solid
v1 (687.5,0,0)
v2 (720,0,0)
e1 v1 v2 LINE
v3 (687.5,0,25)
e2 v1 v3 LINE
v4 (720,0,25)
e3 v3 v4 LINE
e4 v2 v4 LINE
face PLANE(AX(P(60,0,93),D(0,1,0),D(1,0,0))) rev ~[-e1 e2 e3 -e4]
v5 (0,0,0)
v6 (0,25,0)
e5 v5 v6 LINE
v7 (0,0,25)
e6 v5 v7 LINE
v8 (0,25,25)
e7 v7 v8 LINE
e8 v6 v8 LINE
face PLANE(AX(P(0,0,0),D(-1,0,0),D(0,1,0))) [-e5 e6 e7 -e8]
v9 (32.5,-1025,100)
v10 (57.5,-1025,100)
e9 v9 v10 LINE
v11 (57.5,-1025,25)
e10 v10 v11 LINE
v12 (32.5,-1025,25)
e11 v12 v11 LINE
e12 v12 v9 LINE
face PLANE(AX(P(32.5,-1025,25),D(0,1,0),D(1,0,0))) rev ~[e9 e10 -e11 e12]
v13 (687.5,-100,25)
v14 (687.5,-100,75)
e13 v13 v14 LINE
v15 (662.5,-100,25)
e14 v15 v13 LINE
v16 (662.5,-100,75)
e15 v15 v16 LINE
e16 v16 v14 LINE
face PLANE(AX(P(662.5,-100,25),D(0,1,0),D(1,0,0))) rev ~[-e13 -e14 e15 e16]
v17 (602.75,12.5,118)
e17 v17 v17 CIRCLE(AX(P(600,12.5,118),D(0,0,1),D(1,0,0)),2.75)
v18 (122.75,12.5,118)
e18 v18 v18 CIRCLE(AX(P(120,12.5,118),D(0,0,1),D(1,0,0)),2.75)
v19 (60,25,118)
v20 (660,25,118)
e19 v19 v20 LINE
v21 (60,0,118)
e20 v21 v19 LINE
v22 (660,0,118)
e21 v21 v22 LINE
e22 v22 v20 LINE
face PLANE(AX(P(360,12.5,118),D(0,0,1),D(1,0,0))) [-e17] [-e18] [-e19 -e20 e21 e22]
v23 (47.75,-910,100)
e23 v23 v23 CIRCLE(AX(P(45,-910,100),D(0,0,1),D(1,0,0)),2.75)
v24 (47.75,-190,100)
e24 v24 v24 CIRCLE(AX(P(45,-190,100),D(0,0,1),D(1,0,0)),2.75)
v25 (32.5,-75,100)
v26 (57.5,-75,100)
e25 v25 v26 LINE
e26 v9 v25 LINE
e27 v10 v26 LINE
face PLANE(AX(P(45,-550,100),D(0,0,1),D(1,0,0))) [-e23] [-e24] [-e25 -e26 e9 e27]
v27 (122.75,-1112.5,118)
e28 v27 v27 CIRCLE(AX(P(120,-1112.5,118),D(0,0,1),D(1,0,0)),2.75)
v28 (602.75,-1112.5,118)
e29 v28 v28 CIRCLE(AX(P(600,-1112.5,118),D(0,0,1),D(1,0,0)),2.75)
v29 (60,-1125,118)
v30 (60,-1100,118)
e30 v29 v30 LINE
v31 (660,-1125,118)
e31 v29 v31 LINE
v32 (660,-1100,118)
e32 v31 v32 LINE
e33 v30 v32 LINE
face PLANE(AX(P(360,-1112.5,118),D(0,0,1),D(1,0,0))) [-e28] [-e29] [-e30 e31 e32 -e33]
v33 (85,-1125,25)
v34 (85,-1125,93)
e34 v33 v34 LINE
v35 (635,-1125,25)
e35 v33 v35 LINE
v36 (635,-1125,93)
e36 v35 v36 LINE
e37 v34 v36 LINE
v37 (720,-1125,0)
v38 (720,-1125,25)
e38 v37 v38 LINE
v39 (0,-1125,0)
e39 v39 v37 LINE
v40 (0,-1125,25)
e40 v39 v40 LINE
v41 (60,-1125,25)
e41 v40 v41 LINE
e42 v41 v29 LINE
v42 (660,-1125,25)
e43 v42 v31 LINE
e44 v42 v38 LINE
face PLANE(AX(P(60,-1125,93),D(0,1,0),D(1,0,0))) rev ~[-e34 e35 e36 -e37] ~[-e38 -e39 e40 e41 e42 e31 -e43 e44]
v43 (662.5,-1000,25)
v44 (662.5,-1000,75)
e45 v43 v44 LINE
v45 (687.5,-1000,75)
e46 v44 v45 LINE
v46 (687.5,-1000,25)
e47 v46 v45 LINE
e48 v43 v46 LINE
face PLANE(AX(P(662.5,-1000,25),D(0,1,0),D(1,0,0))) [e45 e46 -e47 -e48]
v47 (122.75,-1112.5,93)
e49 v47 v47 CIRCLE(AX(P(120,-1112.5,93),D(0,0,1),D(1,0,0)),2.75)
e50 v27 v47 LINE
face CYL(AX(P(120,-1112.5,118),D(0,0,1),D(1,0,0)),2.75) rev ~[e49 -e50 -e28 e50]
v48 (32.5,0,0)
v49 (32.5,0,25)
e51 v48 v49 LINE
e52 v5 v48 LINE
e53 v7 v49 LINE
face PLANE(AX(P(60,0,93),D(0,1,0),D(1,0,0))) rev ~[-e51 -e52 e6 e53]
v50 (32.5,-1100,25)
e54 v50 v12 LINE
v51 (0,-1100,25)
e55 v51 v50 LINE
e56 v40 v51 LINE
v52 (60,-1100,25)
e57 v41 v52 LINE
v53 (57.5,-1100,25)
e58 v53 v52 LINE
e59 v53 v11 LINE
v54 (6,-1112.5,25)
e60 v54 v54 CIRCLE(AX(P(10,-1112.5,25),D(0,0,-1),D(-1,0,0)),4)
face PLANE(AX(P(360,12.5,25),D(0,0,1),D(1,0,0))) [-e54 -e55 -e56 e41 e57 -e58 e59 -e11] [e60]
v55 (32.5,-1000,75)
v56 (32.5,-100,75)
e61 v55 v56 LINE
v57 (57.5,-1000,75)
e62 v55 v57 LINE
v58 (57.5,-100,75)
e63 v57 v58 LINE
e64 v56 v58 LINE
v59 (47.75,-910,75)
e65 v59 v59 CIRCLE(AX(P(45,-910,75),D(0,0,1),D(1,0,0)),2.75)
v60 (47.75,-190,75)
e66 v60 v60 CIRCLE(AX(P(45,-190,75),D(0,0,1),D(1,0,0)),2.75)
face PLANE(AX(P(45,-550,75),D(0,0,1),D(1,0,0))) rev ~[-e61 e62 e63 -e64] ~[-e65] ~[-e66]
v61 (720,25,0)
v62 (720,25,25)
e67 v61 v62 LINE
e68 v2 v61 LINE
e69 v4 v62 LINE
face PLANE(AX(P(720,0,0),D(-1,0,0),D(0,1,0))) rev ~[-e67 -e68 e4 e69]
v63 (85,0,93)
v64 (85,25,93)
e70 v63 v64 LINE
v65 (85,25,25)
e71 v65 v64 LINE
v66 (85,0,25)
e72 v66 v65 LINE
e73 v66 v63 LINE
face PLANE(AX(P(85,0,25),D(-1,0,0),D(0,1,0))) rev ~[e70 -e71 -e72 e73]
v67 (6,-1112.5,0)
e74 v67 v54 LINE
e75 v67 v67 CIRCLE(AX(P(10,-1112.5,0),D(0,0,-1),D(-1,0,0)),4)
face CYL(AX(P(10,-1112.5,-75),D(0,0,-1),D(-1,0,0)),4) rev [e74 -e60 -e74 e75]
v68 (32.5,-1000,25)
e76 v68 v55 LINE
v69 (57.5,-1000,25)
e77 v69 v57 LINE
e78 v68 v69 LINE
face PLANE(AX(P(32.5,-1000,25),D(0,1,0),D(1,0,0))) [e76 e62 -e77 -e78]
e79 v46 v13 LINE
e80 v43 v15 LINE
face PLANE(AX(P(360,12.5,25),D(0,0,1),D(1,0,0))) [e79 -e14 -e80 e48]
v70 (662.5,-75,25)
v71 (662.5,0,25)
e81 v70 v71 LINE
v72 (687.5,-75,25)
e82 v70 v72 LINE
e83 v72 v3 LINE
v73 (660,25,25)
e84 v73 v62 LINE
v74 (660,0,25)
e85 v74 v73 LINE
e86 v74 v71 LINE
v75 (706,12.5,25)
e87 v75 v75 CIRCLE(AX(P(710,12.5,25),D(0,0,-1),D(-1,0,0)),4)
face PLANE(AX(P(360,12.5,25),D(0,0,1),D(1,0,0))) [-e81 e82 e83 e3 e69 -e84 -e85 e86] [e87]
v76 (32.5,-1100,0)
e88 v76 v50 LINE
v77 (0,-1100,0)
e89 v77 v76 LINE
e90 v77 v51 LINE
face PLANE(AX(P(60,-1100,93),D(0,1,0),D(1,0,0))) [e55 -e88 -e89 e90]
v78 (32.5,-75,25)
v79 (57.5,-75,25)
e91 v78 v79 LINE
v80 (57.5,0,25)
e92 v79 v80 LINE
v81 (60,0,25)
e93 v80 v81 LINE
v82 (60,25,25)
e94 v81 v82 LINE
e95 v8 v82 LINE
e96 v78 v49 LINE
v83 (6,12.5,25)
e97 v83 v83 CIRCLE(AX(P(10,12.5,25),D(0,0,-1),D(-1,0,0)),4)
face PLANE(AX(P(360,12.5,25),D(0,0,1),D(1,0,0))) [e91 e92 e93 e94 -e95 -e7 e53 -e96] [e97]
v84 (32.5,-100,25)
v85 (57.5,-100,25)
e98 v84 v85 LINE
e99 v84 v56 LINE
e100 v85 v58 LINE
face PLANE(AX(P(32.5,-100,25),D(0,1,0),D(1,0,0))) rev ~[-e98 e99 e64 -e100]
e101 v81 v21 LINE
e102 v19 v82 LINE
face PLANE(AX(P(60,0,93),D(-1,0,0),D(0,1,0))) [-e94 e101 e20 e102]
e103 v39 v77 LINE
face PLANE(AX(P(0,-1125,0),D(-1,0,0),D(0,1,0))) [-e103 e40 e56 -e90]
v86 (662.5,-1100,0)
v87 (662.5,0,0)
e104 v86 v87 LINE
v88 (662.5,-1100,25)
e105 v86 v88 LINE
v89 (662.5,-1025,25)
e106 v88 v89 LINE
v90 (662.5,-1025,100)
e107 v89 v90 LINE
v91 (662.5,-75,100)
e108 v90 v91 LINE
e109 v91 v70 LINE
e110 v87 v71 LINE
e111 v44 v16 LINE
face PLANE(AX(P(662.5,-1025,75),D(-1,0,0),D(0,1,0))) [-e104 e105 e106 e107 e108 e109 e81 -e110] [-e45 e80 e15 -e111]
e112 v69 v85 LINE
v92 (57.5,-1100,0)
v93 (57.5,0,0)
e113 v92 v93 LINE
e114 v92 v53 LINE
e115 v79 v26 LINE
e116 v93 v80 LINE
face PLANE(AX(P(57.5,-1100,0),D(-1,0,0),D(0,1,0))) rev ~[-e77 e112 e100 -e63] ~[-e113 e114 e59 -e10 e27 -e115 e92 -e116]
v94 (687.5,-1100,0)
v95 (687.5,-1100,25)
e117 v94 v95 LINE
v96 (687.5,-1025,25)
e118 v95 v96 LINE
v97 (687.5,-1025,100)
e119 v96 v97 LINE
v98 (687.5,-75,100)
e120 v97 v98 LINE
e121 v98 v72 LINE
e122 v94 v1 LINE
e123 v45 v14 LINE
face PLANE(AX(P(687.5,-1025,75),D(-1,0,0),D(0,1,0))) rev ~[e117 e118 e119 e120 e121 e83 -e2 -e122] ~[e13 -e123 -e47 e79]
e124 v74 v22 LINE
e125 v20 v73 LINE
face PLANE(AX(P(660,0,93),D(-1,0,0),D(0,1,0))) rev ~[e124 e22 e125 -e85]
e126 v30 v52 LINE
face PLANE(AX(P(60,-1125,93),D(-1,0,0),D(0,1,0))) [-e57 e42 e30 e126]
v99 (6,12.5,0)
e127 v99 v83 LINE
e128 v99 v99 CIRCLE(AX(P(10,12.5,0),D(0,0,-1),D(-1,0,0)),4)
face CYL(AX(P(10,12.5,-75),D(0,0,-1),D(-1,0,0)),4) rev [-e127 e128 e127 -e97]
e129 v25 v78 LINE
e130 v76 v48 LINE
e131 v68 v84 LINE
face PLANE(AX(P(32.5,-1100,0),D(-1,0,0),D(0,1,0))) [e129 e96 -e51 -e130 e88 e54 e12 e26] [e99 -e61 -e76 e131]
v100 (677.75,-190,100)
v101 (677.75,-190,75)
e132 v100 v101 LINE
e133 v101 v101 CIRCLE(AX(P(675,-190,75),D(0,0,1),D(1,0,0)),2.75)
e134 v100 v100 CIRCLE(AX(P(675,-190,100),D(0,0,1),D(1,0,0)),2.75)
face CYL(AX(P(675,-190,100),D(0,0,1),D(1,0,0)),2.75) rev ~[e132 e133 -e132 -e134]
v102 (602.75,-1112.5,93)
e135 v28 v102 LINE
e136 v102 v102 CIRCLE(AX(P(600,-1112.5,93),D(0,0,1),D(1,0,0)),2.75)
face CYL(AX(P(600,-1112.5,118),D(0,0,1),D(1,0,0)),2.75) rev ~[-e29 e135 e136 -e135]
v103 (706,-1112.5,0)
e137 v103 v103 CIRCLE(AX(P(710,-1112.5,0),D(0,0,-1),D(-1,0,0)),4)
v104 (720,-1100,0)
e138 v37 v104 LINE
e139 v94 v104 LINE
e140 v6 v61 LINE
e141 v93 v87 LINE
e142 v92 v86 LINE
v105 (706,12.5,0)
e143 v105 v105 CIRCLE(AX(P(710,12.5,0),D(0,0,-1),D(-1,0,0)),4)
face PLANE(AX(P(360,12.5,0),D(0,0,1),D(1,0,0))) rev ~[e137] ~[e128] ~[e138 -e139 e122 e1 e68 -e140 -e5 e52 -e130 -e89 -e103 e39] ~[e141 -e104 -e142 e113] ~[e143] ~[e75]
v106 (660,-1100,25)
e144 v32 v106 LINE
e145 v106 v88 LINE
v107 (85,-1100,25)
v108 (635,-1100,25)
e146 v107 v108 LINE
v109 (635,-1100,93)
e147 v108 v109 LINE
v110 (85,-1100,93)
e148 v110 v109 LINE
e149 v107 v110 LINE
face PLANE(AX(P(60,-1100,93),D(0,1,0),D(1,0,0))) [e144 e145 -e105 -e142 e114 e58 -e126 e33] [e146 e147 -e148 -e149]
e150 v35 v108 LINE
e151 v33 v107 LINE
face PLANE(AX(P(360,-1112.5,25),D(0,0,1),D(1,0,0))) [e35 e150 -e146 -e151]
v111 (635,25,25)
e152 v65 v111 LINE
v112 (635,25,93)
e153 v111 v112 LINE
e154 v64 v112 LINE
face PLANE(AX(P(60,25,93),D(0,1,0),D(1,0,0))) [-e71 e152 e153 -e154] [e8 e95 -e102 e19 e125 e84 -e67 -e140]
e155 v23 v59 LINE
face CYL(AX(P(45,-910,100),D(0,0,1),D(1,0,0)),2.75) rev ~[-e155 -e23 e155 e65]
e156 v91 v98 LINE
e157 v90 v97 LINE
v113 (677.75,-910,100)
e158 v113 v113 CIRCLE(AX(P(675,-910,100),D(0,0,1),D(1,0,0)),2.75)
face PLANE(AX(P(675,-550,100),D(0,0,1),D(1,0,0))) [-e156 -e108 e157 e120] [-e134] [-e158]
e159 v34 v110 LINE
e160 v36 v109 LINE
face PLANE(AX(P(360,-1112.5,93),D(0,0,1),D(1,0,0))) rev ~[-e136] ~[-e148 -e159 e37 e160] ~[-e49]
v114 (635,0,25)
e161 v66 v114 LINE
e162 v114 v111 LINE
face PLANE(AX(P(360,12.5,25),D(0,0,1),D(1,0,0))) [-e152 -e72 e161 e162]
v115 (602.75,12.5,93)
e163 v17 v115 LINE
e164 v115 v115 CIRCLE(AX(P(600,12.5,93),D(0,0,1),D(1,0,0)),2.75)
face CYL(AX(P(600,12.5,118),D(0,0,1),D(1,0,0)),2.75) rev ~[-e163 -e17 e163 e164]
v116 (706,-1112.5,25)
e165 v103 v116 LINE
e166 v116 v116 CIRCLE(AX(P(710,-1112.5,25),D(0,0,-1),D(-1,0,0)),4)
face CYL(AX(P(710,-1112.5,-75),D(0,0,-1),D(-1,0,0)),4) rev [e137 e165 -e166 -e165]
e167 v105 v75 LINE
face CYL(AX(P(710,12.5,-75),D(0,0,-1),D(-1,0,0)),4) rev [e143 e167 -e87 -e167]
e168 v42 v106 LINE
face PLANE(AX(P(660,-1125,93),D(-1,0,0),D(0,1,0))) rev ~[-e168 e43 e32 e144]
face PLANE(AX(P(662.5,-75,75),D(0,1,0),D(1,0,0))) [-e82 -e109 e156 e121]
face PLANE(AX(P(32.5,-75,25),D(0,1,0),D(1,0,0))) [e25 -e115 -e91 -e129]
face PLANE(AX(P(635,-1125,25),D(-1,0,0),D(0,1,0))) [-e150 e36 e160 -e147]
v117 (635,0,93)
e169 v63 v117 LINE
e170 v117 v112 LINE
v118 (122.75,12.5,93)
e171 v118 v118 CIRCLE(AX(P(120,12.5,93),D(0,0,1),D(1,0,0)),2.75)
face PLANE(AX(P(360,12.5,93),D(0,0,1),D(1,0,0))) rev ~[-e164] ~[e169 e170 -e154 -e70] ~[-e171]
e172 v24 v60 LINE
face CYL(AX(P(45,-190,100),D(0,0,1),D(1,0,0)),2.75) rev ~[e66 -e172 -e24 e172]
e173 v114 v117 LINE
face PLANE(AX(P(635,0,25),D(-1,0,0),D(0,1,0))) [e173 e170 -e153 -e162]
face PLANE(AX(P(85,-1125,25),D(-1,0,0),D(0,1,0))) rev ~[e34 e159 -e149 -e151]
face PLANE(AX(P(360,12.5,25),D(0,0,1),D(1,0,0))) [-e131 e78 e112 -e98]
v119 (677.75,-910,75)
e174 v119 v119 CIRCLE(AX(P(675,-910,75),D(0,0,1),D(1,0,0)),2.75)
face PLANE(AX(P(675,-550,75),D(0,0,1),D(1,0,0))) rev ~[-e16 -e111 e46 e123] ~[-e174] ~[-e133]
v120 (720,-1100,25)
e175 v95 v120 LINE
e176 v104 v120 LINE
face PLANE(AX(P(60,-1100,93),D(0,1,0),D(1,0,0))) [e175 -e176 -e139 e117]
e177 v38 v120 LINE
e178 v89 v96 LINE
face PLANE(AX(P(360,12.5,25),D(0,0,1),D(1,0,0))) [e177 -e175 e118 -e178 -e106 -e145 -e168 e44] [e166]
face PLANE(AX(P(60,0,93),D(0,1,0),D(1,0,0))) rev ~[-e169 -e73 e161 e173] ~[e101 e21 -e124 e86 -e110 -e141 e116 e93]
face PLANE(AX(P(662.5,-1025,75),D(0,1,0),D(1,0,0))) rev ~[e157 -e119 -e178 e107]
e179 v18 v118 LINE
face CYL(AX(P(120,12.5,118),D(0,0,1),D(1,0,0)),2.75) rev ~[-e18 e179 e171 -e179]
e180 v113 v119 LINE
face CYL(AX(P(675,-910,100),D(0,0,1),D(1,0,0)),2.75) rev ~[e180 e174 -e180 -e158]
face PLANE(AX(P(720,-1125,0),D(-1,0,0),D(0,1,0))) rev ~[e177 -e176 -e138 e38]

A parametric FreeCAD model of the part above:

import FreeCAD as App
import Part
import Sketcher
Q = App.Units.Quantity

doc = App.newDocument("Part")
params = doc.addObject("Spreadsheet::Sheet", "Params")
for row, (alias, value) in enumerate([
    ("sketch1_width", "720 mm"),
    ("sketch1_height", "25 mm"),
    ("pad1_length", "25 mm"),
    ("sketch2_width", "720 mm"),
    ("sketch2_height", "25 mm"),
    ("pad2_length", "25 mm"),
    ("sketch3_diameter", "8 mm"),
    ("pad3_length", "25 mm"),
    ("pad3_length2", "100 mm"),
    ("sketch4_width", "25 mm"),
    ("pad4_length", "68 mm"),
    ("sketch5_width", "600 mm"),
    ("sketch5_height", "25 mm"),
    ("pad5_length", "25 mm"),
    ("sketch6_diameter", "5.5 mm"),
    ("pocket1_length", "25 mm"),
    ("sketch7_width", "25 mm"),
    ("sketch7_height", "1100 mm"),
    ("pad6_length", "25 mm"),
    ("sketch8_width", "25 mm"),
    ("pad7_length", "50 mm"),
    ("sketch9_width", "25 mm"),
    ("sketch9_height", "950 mm"),
    ("pad8_length", "25 mm"),
    ("sketch10_diameter", "5.5 mm"),
    ("pocket2_length", "25 mm"),
], start=1):
    params.set(f"A{row}", alias)
    params.set(f"B{row}", "=" + value)
    params.setAlias(f"B{row}", alias)

body = doc.addObject("PartDesign::Body", "Body")

# Sketch on XY plane
sketch1 = body.newObject("Sketcher::SketchObject", "Sketch")
sketch1.AttachmentSupport = (doc.getObject("XY_Plane"), [""])
sketch1.MapMode = "FlatFace"
sketch1.addGeometry([
    Part.LineSegment(App.Vector(0, 25, 0), App.Vector(0, 0, 0)),
    Part.LineSegment(App.Vector(0, 0, 0), App.Vector(720, 0, 0)),
    Part.LineSegment(App.Vector(720, 0, 0), App.Vector(720, 25, 0)),
    Part.LineSegment(App.Vector(720, 25, 0), App.Vector(0, 25, 0)),
], False)
sketch1.addConstraint([
    Sketcher.Constraint("Coincident", 0, 2, 1, 1),
    Sketcher.Constraint("Coincident", 1, 2, 2, 1),
    Sketcher.Constraint("Coincident", 2, 2, 3, 1),
    Sketcher.Constraint("Coincident", 3, 2, 0, 1),
    Sketcher.Constraint("Vertical", 0),
    Sketcher.Constraint("Horizontal", 1),
    Sketcher.Constraint("Vertical", 2),
    Sketcher.Constraint("Horizontal", 3),
    Sketcher.Constraint("Coincident", 0, 2, -1, 1),
    Sketcher.Constraint("DistanceX", 1, 1, 1, 2, Q("720 mm")),
    Sketcher.Constraint("DistanceY", 0, 2, 0, 1, Q("25 mm")),
])
sketch1.setExpression("Constraints[9]", "Params.sketch1_width")
sketch1.setExpression("Constraints[10]", "Params.sketch1_height")
pad1 = body.newObject("PartDesign::Pad", "Pad")
pad1.Profile = sketch1
pad1.setExpression("Length", "Params.pad1_length")
body2 = doc.addObject("PartDesign::Body", "Body001")

# Sketch on XY plane
sketch2 = body2.newObject("Sketcher::SketchObject", "Sketch001")
sketch2.AttachmentSupport = (doc.getObject("XY_Plane001"), [""])
sketch2.MapMode = "FlatFace"
sketch2.addGeometry([
    Part.LineSegment(App.Vector(0, -1100, 0), App.Vector(0, -1125, 0)),
    Part.LineSegment(App.Vector(0, -1125, 0), App.Vector(720, -1125, 0)),
    Part.LineSegment(App.Vector(720, -1125, 0), App.Vector(720, -1100, 0)),
    Part.LineSegment(App.Vector(720, -1100, 0), App.Vector(0, -1100, 0)),
], False)
sketch2.addConstraint([
    Sketcher.Constraint("Coincident", 0, 2, 1, 1),
    Sketcher.Constraint("Coincident", 1, 2, 2, 1),
    Sketcher.Constraint("Coincident", 2, 2, 3, 1),
    Sketcher.Constraint("Coincident", 3, 2, 0, 1),
    Sketcher.Constraint("Vertical", 0),
    Sketcher.Constraint("Horizontal", 1),
    Sketcher.Constraint("Vertical", 2),
    Sketcher.Constraint("Horizontal", 3),
    Sketcher.Constraint("PointOnObject", 0, 2, -2),
    Sketcher.Constraint("DistanceX", 1, 1, 1, 2, Q("720 mm")),
    Sketcher.Constraint("DistanceY", 0, 2, 0, 1, Q("25 mm")),
    Sketcher.Constraint("DistanceY", 0, 2, -1, 1, Q("1125 mm")),
])
sketch2.setExpression("Constraints[9]", "Params.sketch2_width")
sketch2.setExpression("Constraints[10]", "Params.sketch2_height")
pad2 = body2.newObject("PartDesign::Pad", "Pad001")
pad2.Profile = sketch2
pad2.setExpression("Length", "Params.pad2_length")
body3 = doc.addObject("PartDesign::Body", "Body002")
body3.AllowCompound = True

# Sketch on XY plane
sketch3 = body3.newObject("Sketcher::SketchObject", "Sketch002")
sketch3.AttachmentSupport = (doc.getObject("XY_Plane002"), [""])
sketch3.MapMode = "FlatFace"
sketch3.AttachmentOffset = App.Placement(App.Vector(0, 0, 25), App.Rotation())
sketch3.addGeometry([
    Part.Circle(App.Vector(10, 12.5, 0), App.Vector(0, 0, 1), 4),
    Part.Circle(App.Vector(710, 12.5, 0), App.Vector(0, 0, 1), 4),
    Part.Circle(App.Vector(710, -1112.5, 0), App.Vector(0, 0, 1), 4),
    Part.Circle(App.Vector(10, -1112.5, 0), App.Vector(0, 0, 1), 4),
], False)
sketch3.addConstraint([
    Sketcher.Constraint("Equal", 0, 1),
    Sketcher.Constraint("Equal", 1, 2),
    Sketcher.Constraint("Equal", 2, 3),
    Sketcher.Constraint("Horizontal", 0, 3, 1, 3),
    Sketcher.Constraint("Horizontal", 2, 3, 3, 3),
    Sketcher.Constraint("Vertical", 1, 3, 2, 3),
    Sketcher.Constraint("Vertical", 0, 3, 3, 3),
    Sketcher.Constraint("Diameter", 0, Q("8 mm")),
    Sketcher.Constraint("DistanceX", -1, 1, 0, 3, Q("10 mm")),
    Sketcher.Constraint("DistanceX", -1, 1, 1, 3, Q("710 mm")),
    Sketcher.Constraint("DistanceY", 2, 3, 1, 3, Q("1125 mm")),
    Sketcher.Constraint("DistanceY", -1, 1, 0, 3, Q("12.5 mm")),
])
sketch3.setExpression("Constraints[7]", "Params.sketch3_diameter")
pad3 = body3.newObject("PartDesign::Pad", "Pad002")
pad3.Profile = sketch3
pad3.Type = "TwoLengths"
pad3.setExpression("Length", "Params.pad3_length")
pad3.setExpression("Length2", "Params.pad3_length2")
doc.recompute()

body4 = doc.addObject("PartDesign::Body", "Body003")
body4.BaseFeature = body3
boolean = body.newObject("PartDesign::Boolean", "Boolean")
boolean.Type = "Cut"
boolean.addObjects([body4])
doc.recompute()

boolean2 = body2.newObject("PartDesign::Boolean", "Boolean001")
boolean2.Type = "Cut"
boolean2.addObjects([body3])
body.AllowCompound = True
doc.recompute()

boolean3 = body.newObject("PartDesign::Boolean", "Boolean002")
boolean3.Type = "Fuse"
boolean3.addObjects([body2])

# Sketch on XY plane
sketch4 = body.newObject("Sketcher::SketchObject", "Sketch003")
sketch4.AttachmentSupport = (doc.getObject("XY_Plane"), [""])
sketch4.MapMode = "FlatFace"
sketch4.AttachmentOffset = App.Placement(App.Vector(0, 0, 25), App.Rotation())
sketch4.addGeometry([
    Part.LineSegment(App.Vector(60, 25, 0), App.Vector(60, 0, 0)),  # 0
    Part.LineSegment(App.Vector(60, 0, 0), App.Vector(85, 0, 0)),  # 1
    Part.LineSegment(App.Vector(85, 0, 0), App.Vector(85, 25, 0)),  # 2
    Part.LineSegment(App.Vector(85, 25, 0), App.Vector(60, 25, 0)),  # 3
    Part.LineSegment(App.Vector(635, 25, 0), App.Vector(635, 0, 0)),  # 4
    Part.LineSegment(App.Vector(635, 0, 0), App.Vector(660, 0, 0)),  # 5
    Part.LineSegment(App.Vector(660, 0, 0), App.Vector(660, 25, 0)),  # 6
    Part.LineSegment(App.Vector(660, 25, 0), App.Vector(635, 25, 0)),  # 7
    Part.LineSegment(App.Vector(60, -1100, 0), App.Vector(60, -1125, 0)),  # 8
    Part.LineSegment(App.Vector(60, -1125, 0), App.Vector(85, -1125, 0)),  # 9
    Part.LineSegment(App.Vector(85, -1125, 0), App.Vector(85, -1100, 0)),  # 10
    Part.LineSegment(App.Vector(85, -1100, 0), App.Vector(60, -1100, 0)),  # 11
    Part.LineSegment(App.Vector(635, -1100, 0), App.Vector(635, -1125, 0)),  # 12
    Part.LineSegment(App.Vector(635, -1125, 0), App.Vector(660, -1125, 0)),  # 13
    Part.LineSegment(App.Vector(660, -1125, 0), App.Vector(660, -1100, 0)),  # 14
    Part.LineSegment(App.Vector(660, -1100, 0), App.Vector(635, -1100, 0)),  # 15
], False)
sketch4.addConstraint([
    Sketcher.Constraint("Coincident", 0, 2, 1, 1),
    Sketcher.Constraint("Coincident", 1, 2, 2, 1),
    Sketcher.Constraint("Coincident", 2, 2, 3, 1),
    Sketcher.Constraint("Coincident", 3, 2, 0, 1),
    Sketcher.Constraint("Coincident", 4, 2, 5, 1),
    Sketcher.Constraint("Coincident", 5, 2, 6, 1),
    Sketcher.Constraint("Coincident", 6, 2, 7, 1),
    Sketcher.Constraint("Coincident", 7, 2, 4, 1),
    Sketcher.Constraint("Coincident", 8, 2, 9, 1),
    Sketcher.Constraint("Coincident", 9, 2, 10, 1),
    Sketcher.Constraint("Coincident", 10, 2, 11, 1),
    Sketcher.Constraint("Coincident", 11, 2, 8, 1),
    Sketcher.Constraint("Coincident", 12, 2, 13, 1),
    Sketcher.Constraint("Coincident", 13, 2, 14, 1),
    Sketcher.Constraint("Coincident", 14, 2, 15, 1),
    Sketcher.Constraint("Coincident", 15, 2, 12, 1),
    Sketcher.Constraint("Vertical", 0),
    Sketcher.Constraint("Horizontal", 1),
    Sketcher.Constraint("Vertical", 2),
    Sketcher.Constraint("Horizontal", 3),
    Sketcher.Constraint("Vertical", 4),
    Sketcher.Constraint("Horizontal", 5),
    Sketcher.Constraint("Vertical", 6),
    Sketcher.Constraint("Horizontal", 7),
    Sketcher.Constraint("Vertical", 8),
    Sketcher.Constraint("Horizontal", 9),
    Sketcher.Constraint("Vertical", 10),
    Sketcher.Constraint("Horizontal", 11),
    Sketcher.Constraint("Vertical", 12),
    Sketcher.Constraint("Horizontal", 13),
    Sketcher.Constraint("Vertical", 14),
    Sketcher.Constraint("Horizontal", 15),
    Sketcher.Constraint("PointOnObject", 0, 2, -1),
    Sketcher.Constraint("PointOnObject", 4, 2, -1),
    Sketcher.Constraint("Horizontal", 3, 2, 6, 2),
    Sketcher.Constraint("Horizontal", 9, 2, 12, 2),
    Sketcher.Constraint("Horizontal", 11, 2, 14, 2),
    Sketcher.Constraint("Vertical", 3, 2, 8, 2),
    Sketcher.Constraint("Vertical", 2, 2, 9, 2),
    Sketcher.Constraint("Vertical", 7, 2, 12, 2),
    Sketcher.Constraint("Vertical", 6, 2, 13, 2),
    Sketcher.Constraint("Equal", 3, 5),
    Sketcher.Constraint("Equal", 15, 0),
    Sketcher.Constraint("Equal", 6, 8),
    Sketcher.Constraint("DistanceX", 1, 1, 1, 2, Q("25 mm")),
    Sketcher.Constraint("DistanceX", -1, 1, 0, 2, Q("60 mm")),
    Sketcher.Constraint("DistanceX", -1, 1, 4, 2, Q("635 mm")),
    Sketcher.Constraint("DistanceY", 8, 2, -1, 1, Q("1125 mm")),
])
sketch4.setExpression("Constraints[44]", "Params.sketch4_width")
pad4 = body.newObject("PartDesign::Pad", "Pad003")
pad4.Profile = sketch4
pad4.setExpression("Length", "Params.pad4_length")

# Sketch on XY plane
sketch5 = body.newObject("Sketcher::SketchObject", "Sketch004")
sketch5.AttachmentSupport = (doc.getObject("XY_Plane"), [""])
sketch5.MapMode = "FlatFace"
sketch5.AttachmentOffset = App.Placement(App.Vector(0, 0, 93), App.Rotation())
sketch5.addGeometry([
    Part.LineSegment(App.Vector(60, 25, 0), App.Vector(60, 0, 0)),  # 0
    Part.LineSegment(App.Vector(60, 0, 0), App.Vector(660, 0, 0)),  # 1
    Part.LineSegment(App.Vector(660, 0, 0), App.Vector(660, 25, 0)),  # 2
    Part.LineSegment(App.Vector(660, 25, 0), App.Vector(60, 25, 0)),  # 3
    Part.LineSegment(App.Vector(60, -1100, 0), App.Vector(60, -1125, 0)),  # 4
    Part.LineSegment(App.Vector(60, -1125, 0), App.Vector(660, -1125, 0)),  # 5
    Part.LineSegment(App.Vector(660, -1125, 0), App.Vector(660, -1100, 0)),  # 6
    Part.LineSegment(App.Vector(660, -1100, 0), App.Vector(60, -1100, 0)),  # 7
], False)
sketch5.addConstraint([
    Sketcher.Constraint("Coincident", 0, 2, 1, 1),
    Sketcher.Constraint("Coincident", 1, 2, 2, 1),
    Sketcher.Constraint("Coincident", 2, 2, 3, 1),
    Sketcher.Constraint("Coincident", 3, 2, 0, 1),
    Sketcher.Constraint("Coincident", 4, 2, 5, 1),
    Sketcher.Constraint("Coincident", 5, 2, 6, 1),
    Sketcher.Constraint("Coincident", 6, 2, 7, 1),
    Sketcher.Constraint("Coincident", 7, 2, 4, 1),
    Sketcher.Constraint("Vertical", 0),
    Sketcher.Constraint("Horizontal", 1),
    Sketcher.Constraint("Vertical", 2),
    Sketcher.Constraint("Horizontal", 3),
    Sketcher.Constraint("Vertical", 4),
    Sketcher.Constraint("Horizontal", 5),
    Sketcher.Constraint("Vertical", 6),
    Sketcher.Constraint("Horizontal", 7),
    Sketcher.Constraint("PointOnObject", 0, 2, -1),
    Sketcher.Constraint("Vertical", 3, 2, 4, 2),
    Sketcher.Constraint("Vertical", 2, 2, 5, 2),
    Sketcher.Constraint("Equal", 2, 4),
    Sketcher.Constraint("DistanceX", 1, 1, 1, 2, Q("600 mm")),
    Sketcher.Constraint("DistanceY", 0, 2, 0, 1, Q("25 mm")),
    Sketcher.Constraint("DistanceX", -1, 1, 0, 2, Q("60 mm")),
    Sketcher.Constraint("DistanceY", 4, 2, -1, 1, Q("1125 mm")),
])
sketch5.setExpression("Constraints[20]", "Params.sketch5_width")
sketch5.setExpression("Constraints[21]", "Params.sketch5_height")
pad5 = body.newObject("PartDesign::Pad", "Pad004")
pad5.Profile = sketch5
pad5.setExpression("Length", "Params.pad5_length")

# Sketch on XY plane
sketch6 = body.newObject("Sketcher::SketchObject", "Sketch005")
sketch6.AttachmentSupport = (doc.getObject("XY_Plane"), [""])
sketch6.MapMode = "FlatFace"
sketch6.AttachmentOffset = App.Placement(App.Vector(0, 0, 118), App.Rotation())
sketch6.addGeometry([
    Part.Circle(App.Vector(120, 12.5, 0), App.Vector(0, 0, 1), 2.8),
    Part.Circle(App.Vector(600, 12.5, 0), App.Vector(0, 0, 1), 2.8),
    Part.Circle(App.Vector(600, -1112.5, 0), App.Vector(0, 0, 1), 2.8),
    Part.Circle(App.Vector(120, -1112.5, 0), App.Vector(0, 0, 1), 2.8),
], False)
sketch6.addConstraint([
    Sketcher.Constraint("Equal", 0, 1),
    Sketcher.Constraint("Equal", 1, 2),
    Sketcher.Constraint("Equal", 2, 3),
    Sketcher.Constraint("Horizontal", 0, 3, 1, 3),
    Sketcher.Constraint("Horizontal", 2, 3, 3, 3),
    Sketcher.Constraint("Vertical", 1, 3, 2, 3),
    Sketcher.Constraint("Vertical", 0, 3, 3, 3),
    Sketcher.Constraint("Diameter", 0, Q("5.5 mm")),
    Sketcher.Constraint("DistanceX", -1, 1, 0, 3, Q("120 mm")),
    Sketcher.Constraint("DistanceX", -1, 1, 1, 3, Q("600 mm")),
    Sketcher.Constraint("DistanceY", 2, 3, 1, 3, Q("1125 mm")),
    Sketcher.Constraint("DistanceY", -1, 1, 0, 3, Q("12.5 mm")),
])
sketch6.setExpression("Constraints[7]", "Params.sketch6_diameter")
pocket1 = body.newObject("PartDesign::Pocket", "Pocket")
pocket1.Profile = sketch6
pocket1.setExpression("Length", "Params.pocket1_length")

# Sketch on XY plane
sketch7 = body.newObject("Sketcher::SketchObject", "Sketch006")
sketch7.AttachmentSupport = (doc.getObject("XY_Plane"), [""])
sketch7.MapMode = "FlatFace"
sketch7.addGeometry([
    Part.LineSegment(App.Vector(688, 0, 0), App.Vector(688, -1100, 0)),  # 0
    Part.LineSegment(App.Vector(688, -1100, 0), App.Vector(662, -1100, 0)),  # 1
    Part.LineSegment(App.Vector(662, -1100, 0), App.Vector(662, 0, 0)),  # 2
    Part.LineSegment(App.Vector(662, 0, 0), App.Vector(688, 0, 0)),  # 3
    Part.LineSegment(App.Vector(58, 0, 0), App.Vector(58, -1100, 0)),  # 4
    Part.LineSegment(App.Vector(58, -1100, 0), App.Vector(32, -1100, 0)),  # 5
    Part.LineSegment(App.Vector(32, -1100, 0), App.Vector(32, 0, 0)),  # 6
    Part.LineSegment(App.Vector(32, 0, 0), App.Vector(58, 0, 0)),  # 7
], False)
sketch7.addConstraint([
    Sketcher.Constraint("Coincident", 0, 2, 1, 1),
    Sketcher.Constraint("Coincident", 1, 2, 2, 1),
    Sketcher.Constraint("Coincident", 2, 2, 3, 1),
    Sketcher.Constraint("Coincident", 3, 2, 0, 1),
    Sketcher.Constraint("Coincident", 4, 2, 5, 1),
    Sketcher.Constraint("Coincident", 5, 2, 6, 1),
    Sketcher.Constraint("Coincident", 6, 2, 7, 1),
    Sketcher.Constraint("Coincident", 7, 2, 4, 1),
    Sketcher.Constraint("Vertical", 0),
    Sketcher.Constraint("Horizontal", 1),
    Sketcher.Constraint("Vertical", 2),
    Sketcher.Constraint("Horizontal", 3),
    Sketcher.Constraint("Vertical", 4),
    Sketcher.Constraint("Horizontal", 5),
    Sketcher.Constraint("Vertical", 6),
    Sketcher.Constraint("Horizontal", 7),
    Sketcher.Constraint("PointOnObject", 2, 2, -1),
    Sketcher.Constraint("PointOnObject", 6, 2, -1),
    Sketcher.Constraint("Horizontal", 1, 2, 4, 2),
    Sketcher.Constraint("Equal", 3, 5),
    Sketcher.Constraint("DistanceX", 1, 2, 1, 1, Q("25 mm")),
    Sketcher.Constraint("DistanceY", 0, 2, 0, 1, Q("1100 mm")),
    Sketcher.Constraint("DistanceX", 4, 2, 1, 2, Q("605 mm")),
    Sketcher.Constraint("DistanceX", -1, 1, 0, 2, Q("687.5 mm")),
])
sketch7.setExpression("Constraints[20]", "Params.sketch7_width")
sketch7.setExpression("Constraints[21]", "Params.sketch7_height")
pad6 = body.newObject("PartDesign::Pad", "Pad005")
pad6.Profile = sketch7
pad6.setExpression("Length", "Params.pad6_length")

# Sketch on XY plane
sketch8 = body.newObject("Sketcher::SketchObject", "Sketch007")
sketch8.AttachmentSupport = (doc.getObject("XY_Plane"), [""])
sketch8.MapMode = "FlatFace"
sketch8.AttachmentOffset = App.Placement(App.Vector(0, 0, 25), App.Rotation())
sketch8.addGeometry([
    Part.LineSegment(App.Vector(32, -1000, 0), App.Vector(32, -1025, 0)),  # 0
    Part.LineSegment(App.Vector(32, -1025, 0), App.Vector(58, -1025, 0)),  # 1
    Part.LineSegment(App.Vector(58, -1025, 0), App.Vector(58, -1000, 0)),  # 2
    Part.LineSegment(App.Vector(58, -1000, 0), App.Vector(32, -1000, 0)),  # 3
    Part.LineSegment(App.Vector(32, -75, 0), App.Vector(32, -100, 0)),  # 4
    Part.LineSegment(App.Vector(32, -100, 0), App.Vector(58, -100, 0)),  # 5
    Part.LineSegment(App.Vector(58, -100, 0), App.Vector(58, -75, 0)),  # 6
    Part.LineSegment(App.Vector(58, -75, 0), App.Vector(32, -75, 0)),  # 7
    Part.LineSegment(App.Vector(662, -75, 0), App.Vector(662, -100, 0)),  # 8
    Part.LineSegment(App.Vector(662, -100, 0), App.Vector(688, -100, 0)),  # 9
    Part.LineSegment(App.Vector(688, -100, 0), App.Vector(688, -75, 0)),  # 10
    Part.LineSegment(App.Vector(688, -75, 0), App.Vector(662, -75, 0)),  # 11
    Part.LineSegment(App.Vector(662, -1000, 0), App.Vector(662, -1025, 0)),  # 12
    Part.LineSegment(App.Vector(662, -1025, 0), App.Vector(688, -1025, 0)),  # 13
    Part.LineSegment(App.Vector(688, -1025, 0), App.Vector(688, -1000, 0)),  # 14
    Part.LineSegment(App.Vector(688, -1000, 0), App.Vector(662, -1000, 0)),  # 15
], False)
sketch8.addConstraint([
    Sketcher.Constraint("Coincident", 0, 2, 1, 1),
    Sketcher.Constraint("Coincident", 1, 2, 2, 1),
    Sketcher.Constraint("Coincident", 2, 2, 3, 1),
    Sketcher.Constraint("Coincident", 3, 2, 0, 1),
    Sketcher.Constraint("Coincident", 4, 2, 5, 1),
    Sketcher.Constraint("Coincident", 5, 2, 6, 1),
    Sketcher.Constraint("Coincident", 6, 2, 7, 1),
    Sketcher.Constraint("Coincident", 7, 2, 4, 1),
    Sketcher.Constraint("Coincident", 8, 2, 9, 1),
    Sketcher.Constraint("Coincident", 9, 2, 10, 1),
    Sketcher.Constraint("Coincident", 10, 2, 11, 1),
    Sketcher.Constraint("Coincident", 11, 2, 8, 1),
    Sketcher.Constraint("Coincident", 12, 2, 13, 1),
    Sketcher.Constraint("Coincident", 13, 2, 14, 1),
    Sketcher.Constraint("Coincident", 14, 2, 15, 1),
    Sketcher.Constraint("Coincident", 15, 2, 12, 1),
    Sketcher.Constraint("Vertical", 0),
    Sketcher.Constraint("Horizontal", 1),
    Sketcher.Constraint("Vertical", 2),
    Sketcher.Constraint("Horizontal", 3),
    Sketcher.Constraint("Vertical", 4),
    Sketcher.Constraint("Horizontal", 5),
    Sketcher.Constraint("Vertical", 6),
    Sketcher.Constraint("Horizontal", 7),
    Sketcher.Constraint("Vertical", 8),
    Sketcher.Constraint("Horizontal", 9),
    Sketcher.Constraint("Vertical", 10),
    Sketcher.Constraint("Horizontal", 11),
    Sketcher.Constraint("Vertical", 12),
    Sketcher.Constraint("Horizontal", 13),
    Sketcher.Constraint("Vertical", 14),
    Sketcher.Constraint("Horizontal", 15),
    Sketcher.Constraint("Horizontal", 5, 2, 8, 2),
    Sketcher.Constraint("Horizontal", 7, 2, 10, 2),
    Sketcher.Constraint("Horizontal", 1, 2, 12, 2),
    Sketcher.Constraint("Horizontal", 3, 2, 14, 2),
    Sketcher.Constraint("Vertical", 3, 2, 4, 2),
    Sketcher.Constraint("Vertical", 2, 2, 5, 2),
    Sketcher.Constraint("Vertical", 11, 2, 12, 2),
    Sketcher.Constraint("Vertical", 10, 2, 13, 2),
    Sketcher.Constraint("Equal", 7, 9),
    Sketcher.Constraint("Equal", 15, 0),
    Sketcher.Constraint("Equal", 2, 4),
    Sketcher.Constraint("DistanceX", 1, 1, 1, 2, Q("25 mm")),
    Sketcher.Constraint("DistanceY", 0, 2, -1, 1, Q("1025 mm")),
    Sketcher.Constraint("DistanceY", 4, 2, -1, 1, Q("100 mm")),
    Sketcher.Constraint("DistanceX", 5, 2, 8, 2, Q("605 mm")),
    Sketcher.Constraint("DistanceX", -1, 1, 0, 2, Q("32.5 mm")),
])
sketch8.setExpression("Constraints[43]", "Params.sketch8_width")
pad7 = body.newObject("PartDesign::Pad", "Pad006")
pad7.Profile = sketch8
pad7.setExpression("Length", "Params.pad7_length")

# Sketch on XY plane
sketch9 = body.newObject("Sketcher::SketchObject", "Sketch008")
sketch9.AttachmentSupport = (doc.getObject("XY_Plane"), [""])
sketch9.MapMode = "FlatFace"
sketch9.AttachmentOffset = App.Placement(App.Vector(0, 0, 75), App.Rotation())
sketch9.addGeometry([
    Part.LineSegment(App.Vector(662, -75, 0), App.Vector(662, -1025, 0)),  # 0
    Part.LineSegment(App.Vector(662, -1025, 0), App.Vector(688, -1025, 0)),  # 1
    Part.LineSegment(App.Vector(688, -1025, 0), App.Vector(688, -75, 0)),  # 2
    Part.LineSegment(App.Vector(688, -75, 0), App.Vector(662, -75, 0)),  # 3
    Part.LineSegment(App.Vector(32, -75, 0), App.Vector(32, -1025, 0)),  # 4
    Part.LineSegment(App.Vector(32, -1025, 0), App.Vector(58, -1025, 0)),  # 5
    Part.LineSegment(App.Vector(58, -1025, 0), App.Vector(58, -75, 0)),  # 6
    Part.LineSegment(App.Vector(58, -75, 0), App.Vector(32, -75, 0)),  # 7
], False)
sketch9.addConstraint([
    Sketcher.Constraint("Coincident", 0, 2, 1, 1),
    Sketcher.Constraint("Coincident", 1, 2, 2, 1),
    Sketcher.Constraint("Coincident", 2, 2, 3, 1),
    Sketcher.Constraint("Coincident", 3, 2, 0, 1),
    Sketcher.Constraint("Coincident", 4, 2, 5, 1),
    Sketcher.Constraint("Coincident", 5, 2, 6, 1),
    Sketcher.Constraint("Coincident", 6, 2, 7, 1),
    Sketcher.Constraint("Coincident", 7, 2, 4, 1),
    Sketcher.Constraint("Vertical", 0),
    Sketcher.Constraint("Horizontal", 1),
    Sketcher.Constraint("Vertical", 2),
    Sketcher.Constraint("Horizontal", 3),
    Sketcher.Constraint("Vertical", 4),
    Sketcher.Constraint("Horizontal", 5),
    Sketcher.Constraint("Vertical", 6),
    Sketcher.Constraint("Horizontal", 7),
    Sketcher.Constraint("Horizontal", 1, 2, 4, 2),
    Sketcher.Constraint("Horizontal", 3, 2, 6, 2),
    Sketcher.Constraint("Equal", 3, 5),
    Sketcher.Constraint("DistanceX", 1, 1, 1, 2, Q("25 mm")),
    Sketcher.Constraint("DistanceY", 0, 2, 0, 1, Q("950 mm")),
    Sketcher.Constraint("DistanceY", 0, 2, -1, 1, Q("1025 mm")),
    Sketcher.Constraint("DistanceX", 4, 2, 0, 2, Q("630 mm")),
    Sketcher.Constraint("DistanceX", -1, 1, 0, 2, Q("662.5 mm")),
])
sketch9.setExpression("Constraints[19]", "Params.sketch9_width")
sketch9.setExpression("Constraints[20]", "Params.sketch9_height")
pad8 = body.newObject("PartDesign::Pad", "Pad007")
pad8.Profile = sketch9
pad8.setExpression("Length", "Params.pad8_length")

# Sketch on XY plane
sketch10 = body.newObject("Sketcher::SketchObject", "Sketch009")
sketch10.AttachmentSupport = (doc.getObject("XY_Plane"), [""])
sketch10.MapMode = "FlatFace"
sketch10.AttachmentOffset = App.Placement(App.Vector(0, 0, 100), App.Rotation())
sketch10.addGeometry([
    Part.Circle(App.Vector(675, -910, 0), App.Vector(0, 0, 1), 2.8),
    Part.Circle(App.Vector(45, -910, 0), App.Vector(0, 0, 1), 2.8),
    Part.Circle(App.Vector(675, -190, 0), App.Vector(0, 0, 1), 2.8),
    Part.Circle(App.Vector(45, -190, 0), App.Vector(0, 0, 1), 2.8),
], False)
sketch10.addConstraint([
    Sketcher.Constraint("Equal", 0, 1),
    Sketcher.Constraint("Equal", 1, 2),
    Sketcher.Constraint("Equal", 2, 3),
    Sketcher.Constraint("Horizontal", 0, 3, 1, 3),
    Sketcher.Constraint("Horizontal", 2, 3, 3, 3),
    Sketcher.Constraint("Vertical", 0, 3, 2, 3),
    Sketcher.Constraint("Vertical", 1, 3, 3, 3),
    Sketcher.Constraint("Diameter", 0, Q("5.5 mm")),
    Sketcher.Constraint("DistanceX", -1, 1, 0, 3, Q("675 mm")),
    Sketcher.Constraint("DistanceY", 0, 3, -1, 1, Q("910 mm")),
    Sketcher.Constraint("DistanceX", -1, 1, 1, 3, Q("45 mm")),
    Sketcher.Constraint("DistanceY", 2, 3, -1, 1, Q("190 mm")),
])
sketch10.setExpression("Constraints[7]", "Params.sketch10_diameter")
pocket2 = body.newObject("PartDesign::Pocket", "Pocket001")
pocket2.Profile = sketch10
pocket2.setExpression("Length", "Params.pocket2_length")

doc.recompute()
